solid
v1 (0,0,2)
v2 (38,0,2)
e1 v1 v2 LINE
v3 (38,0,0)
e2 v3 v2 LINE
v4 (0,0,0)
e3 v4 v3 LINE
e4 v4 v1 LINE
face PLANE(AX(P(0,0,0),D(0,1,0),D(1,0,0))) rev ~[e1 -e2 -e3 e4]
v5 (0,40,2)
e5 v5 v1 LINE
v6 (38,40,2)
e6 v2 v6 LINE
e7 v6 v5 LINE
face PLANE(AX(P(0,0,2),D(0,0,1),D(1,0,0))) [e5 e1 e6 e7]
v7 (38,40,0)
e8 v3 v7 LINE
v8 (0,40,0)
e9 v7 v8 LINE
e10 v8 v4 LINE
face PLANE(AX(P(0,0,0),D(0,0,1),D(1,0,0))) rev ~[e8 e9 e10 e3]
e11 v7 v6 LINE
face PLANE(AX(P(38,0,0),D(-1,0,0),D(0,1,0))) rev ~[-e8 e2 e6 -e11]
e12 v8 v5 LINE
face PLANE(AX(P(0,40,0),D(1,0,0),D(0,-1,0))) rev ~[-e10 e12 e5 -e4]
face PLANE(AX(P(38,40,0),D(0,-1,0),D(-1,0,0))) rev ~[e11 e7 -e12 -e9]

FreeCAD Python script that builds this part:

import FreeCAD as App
import Part
import Sketcher
from FreeCAD import Vector

doc = App.newDocument("Part")
body = doc.addObject("PartDesign::Body", "Body")

# Sketch on XY plane
sketch1 = body.newObject("Sketcher::SketchObject", "Sketch")
sketch1.AttachmentSupport = (doc.getObject("XY_Plane"), [""])
sketch1.MapMode = "FlatFace"
sketch1.addGeometry([
    Part.LineSegment(Vector(0, 40, 0), Vector(0, 0, 0)),
    Part.LineSegment(Vector(0, 0, 0), Vector(38, 0, 0)),
    Part.LineSegment(Vector(38, 0, 0), Vector(38, 40, 0)),
    Part.LineSegment(Vector(38, 40, 0), Vector(0, 40, 0)),
], False)
sketch1.addConstraint([
    Sketcher.Constraint("Coincident", 0, 2, 1, 1),
    Sketcher.Constraint("Coincident", 1, 2, 2, 1),
    Sketcher.Constraint("Coincident", 2, 2, 3, 1),
    Sketcher.Constraint("Coincident", 3, 2, 0, 1),
    Sketcher.Constraint("Vertical", 0),
    Sketcher.Constraint("Horizontal", 1),
    Sketcher.Constraint("Vertical", 2),
    Sketcher.Constraint("Horizontal", 3),
    Sketcher.Constraint("Coincident", 0, 2, -1, 1),
    Sketcher.Constraint("DistanceX", 1, 1, 1, 2, 38.0),
    Sketcher.Constraint("DistanceY", 0, 2, 0, 1, 40.0),
])
pad1 = body.newObject("PartDesign::Pad", "Pad")
pad1.Profile = sketch1
pad1.Length = 2

doc.recompute()
